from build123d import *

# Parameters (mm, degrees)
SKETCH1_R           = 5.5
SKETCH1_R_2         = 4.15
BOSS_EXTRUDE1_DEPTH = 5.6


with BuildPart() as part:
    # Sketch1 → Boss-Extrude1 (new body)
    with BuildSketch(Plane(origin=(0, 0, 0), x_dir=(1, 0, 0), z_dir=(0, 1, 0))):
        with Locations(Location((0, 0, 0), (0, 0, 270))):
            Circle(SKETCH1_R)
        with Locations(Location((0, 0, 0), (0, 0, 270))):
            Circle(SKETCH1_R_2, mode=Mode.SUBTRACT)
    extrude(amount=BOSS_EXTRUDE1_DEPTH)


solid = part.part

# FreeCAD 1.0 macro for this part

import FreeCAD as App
import Part
import Sketcher

doc = App.newDocument("Part")
body = doc.addObject("PartDesign::Body", "Body")

sketch1 = body.newObject("Sketcher::SketchObject", "Sketch")
sketch1.AttachmentSupport = (doc.getObject("XZ_Plane"), [""])
sketch1.MapMode = "FlatFace"
sketch1.addGeometry(Part.Circle(App.Vector(0, 0, 0), App.Vector(0, 0, 1), 5.5), False)
sketch1.addGeometry(Part.Circle(App.Vector(0, 0, 0), App.Vector(0, 0, 1), 4.2), False)
sketch1.addConstraint(Sketcher.Constraint("Coincident", 0, 3, -1, 1))
sketch1.addConstraint(Sketcher.Constraint("Coincident", 1, 3, -1, 1))
sketch1.addConstraint(Sketcher.Constraint("Diameter", 0, 11.0))
sketch1.addConstraint(Sketcher.Constraint("Diameter", 1, 8.3))
pad1 = body.newObject("PartDesign::Pad", "Pad")
pad1.Profile = sketch1
pad1.Length = 5.6
pad1.Reversed = True

doc.recompute()
